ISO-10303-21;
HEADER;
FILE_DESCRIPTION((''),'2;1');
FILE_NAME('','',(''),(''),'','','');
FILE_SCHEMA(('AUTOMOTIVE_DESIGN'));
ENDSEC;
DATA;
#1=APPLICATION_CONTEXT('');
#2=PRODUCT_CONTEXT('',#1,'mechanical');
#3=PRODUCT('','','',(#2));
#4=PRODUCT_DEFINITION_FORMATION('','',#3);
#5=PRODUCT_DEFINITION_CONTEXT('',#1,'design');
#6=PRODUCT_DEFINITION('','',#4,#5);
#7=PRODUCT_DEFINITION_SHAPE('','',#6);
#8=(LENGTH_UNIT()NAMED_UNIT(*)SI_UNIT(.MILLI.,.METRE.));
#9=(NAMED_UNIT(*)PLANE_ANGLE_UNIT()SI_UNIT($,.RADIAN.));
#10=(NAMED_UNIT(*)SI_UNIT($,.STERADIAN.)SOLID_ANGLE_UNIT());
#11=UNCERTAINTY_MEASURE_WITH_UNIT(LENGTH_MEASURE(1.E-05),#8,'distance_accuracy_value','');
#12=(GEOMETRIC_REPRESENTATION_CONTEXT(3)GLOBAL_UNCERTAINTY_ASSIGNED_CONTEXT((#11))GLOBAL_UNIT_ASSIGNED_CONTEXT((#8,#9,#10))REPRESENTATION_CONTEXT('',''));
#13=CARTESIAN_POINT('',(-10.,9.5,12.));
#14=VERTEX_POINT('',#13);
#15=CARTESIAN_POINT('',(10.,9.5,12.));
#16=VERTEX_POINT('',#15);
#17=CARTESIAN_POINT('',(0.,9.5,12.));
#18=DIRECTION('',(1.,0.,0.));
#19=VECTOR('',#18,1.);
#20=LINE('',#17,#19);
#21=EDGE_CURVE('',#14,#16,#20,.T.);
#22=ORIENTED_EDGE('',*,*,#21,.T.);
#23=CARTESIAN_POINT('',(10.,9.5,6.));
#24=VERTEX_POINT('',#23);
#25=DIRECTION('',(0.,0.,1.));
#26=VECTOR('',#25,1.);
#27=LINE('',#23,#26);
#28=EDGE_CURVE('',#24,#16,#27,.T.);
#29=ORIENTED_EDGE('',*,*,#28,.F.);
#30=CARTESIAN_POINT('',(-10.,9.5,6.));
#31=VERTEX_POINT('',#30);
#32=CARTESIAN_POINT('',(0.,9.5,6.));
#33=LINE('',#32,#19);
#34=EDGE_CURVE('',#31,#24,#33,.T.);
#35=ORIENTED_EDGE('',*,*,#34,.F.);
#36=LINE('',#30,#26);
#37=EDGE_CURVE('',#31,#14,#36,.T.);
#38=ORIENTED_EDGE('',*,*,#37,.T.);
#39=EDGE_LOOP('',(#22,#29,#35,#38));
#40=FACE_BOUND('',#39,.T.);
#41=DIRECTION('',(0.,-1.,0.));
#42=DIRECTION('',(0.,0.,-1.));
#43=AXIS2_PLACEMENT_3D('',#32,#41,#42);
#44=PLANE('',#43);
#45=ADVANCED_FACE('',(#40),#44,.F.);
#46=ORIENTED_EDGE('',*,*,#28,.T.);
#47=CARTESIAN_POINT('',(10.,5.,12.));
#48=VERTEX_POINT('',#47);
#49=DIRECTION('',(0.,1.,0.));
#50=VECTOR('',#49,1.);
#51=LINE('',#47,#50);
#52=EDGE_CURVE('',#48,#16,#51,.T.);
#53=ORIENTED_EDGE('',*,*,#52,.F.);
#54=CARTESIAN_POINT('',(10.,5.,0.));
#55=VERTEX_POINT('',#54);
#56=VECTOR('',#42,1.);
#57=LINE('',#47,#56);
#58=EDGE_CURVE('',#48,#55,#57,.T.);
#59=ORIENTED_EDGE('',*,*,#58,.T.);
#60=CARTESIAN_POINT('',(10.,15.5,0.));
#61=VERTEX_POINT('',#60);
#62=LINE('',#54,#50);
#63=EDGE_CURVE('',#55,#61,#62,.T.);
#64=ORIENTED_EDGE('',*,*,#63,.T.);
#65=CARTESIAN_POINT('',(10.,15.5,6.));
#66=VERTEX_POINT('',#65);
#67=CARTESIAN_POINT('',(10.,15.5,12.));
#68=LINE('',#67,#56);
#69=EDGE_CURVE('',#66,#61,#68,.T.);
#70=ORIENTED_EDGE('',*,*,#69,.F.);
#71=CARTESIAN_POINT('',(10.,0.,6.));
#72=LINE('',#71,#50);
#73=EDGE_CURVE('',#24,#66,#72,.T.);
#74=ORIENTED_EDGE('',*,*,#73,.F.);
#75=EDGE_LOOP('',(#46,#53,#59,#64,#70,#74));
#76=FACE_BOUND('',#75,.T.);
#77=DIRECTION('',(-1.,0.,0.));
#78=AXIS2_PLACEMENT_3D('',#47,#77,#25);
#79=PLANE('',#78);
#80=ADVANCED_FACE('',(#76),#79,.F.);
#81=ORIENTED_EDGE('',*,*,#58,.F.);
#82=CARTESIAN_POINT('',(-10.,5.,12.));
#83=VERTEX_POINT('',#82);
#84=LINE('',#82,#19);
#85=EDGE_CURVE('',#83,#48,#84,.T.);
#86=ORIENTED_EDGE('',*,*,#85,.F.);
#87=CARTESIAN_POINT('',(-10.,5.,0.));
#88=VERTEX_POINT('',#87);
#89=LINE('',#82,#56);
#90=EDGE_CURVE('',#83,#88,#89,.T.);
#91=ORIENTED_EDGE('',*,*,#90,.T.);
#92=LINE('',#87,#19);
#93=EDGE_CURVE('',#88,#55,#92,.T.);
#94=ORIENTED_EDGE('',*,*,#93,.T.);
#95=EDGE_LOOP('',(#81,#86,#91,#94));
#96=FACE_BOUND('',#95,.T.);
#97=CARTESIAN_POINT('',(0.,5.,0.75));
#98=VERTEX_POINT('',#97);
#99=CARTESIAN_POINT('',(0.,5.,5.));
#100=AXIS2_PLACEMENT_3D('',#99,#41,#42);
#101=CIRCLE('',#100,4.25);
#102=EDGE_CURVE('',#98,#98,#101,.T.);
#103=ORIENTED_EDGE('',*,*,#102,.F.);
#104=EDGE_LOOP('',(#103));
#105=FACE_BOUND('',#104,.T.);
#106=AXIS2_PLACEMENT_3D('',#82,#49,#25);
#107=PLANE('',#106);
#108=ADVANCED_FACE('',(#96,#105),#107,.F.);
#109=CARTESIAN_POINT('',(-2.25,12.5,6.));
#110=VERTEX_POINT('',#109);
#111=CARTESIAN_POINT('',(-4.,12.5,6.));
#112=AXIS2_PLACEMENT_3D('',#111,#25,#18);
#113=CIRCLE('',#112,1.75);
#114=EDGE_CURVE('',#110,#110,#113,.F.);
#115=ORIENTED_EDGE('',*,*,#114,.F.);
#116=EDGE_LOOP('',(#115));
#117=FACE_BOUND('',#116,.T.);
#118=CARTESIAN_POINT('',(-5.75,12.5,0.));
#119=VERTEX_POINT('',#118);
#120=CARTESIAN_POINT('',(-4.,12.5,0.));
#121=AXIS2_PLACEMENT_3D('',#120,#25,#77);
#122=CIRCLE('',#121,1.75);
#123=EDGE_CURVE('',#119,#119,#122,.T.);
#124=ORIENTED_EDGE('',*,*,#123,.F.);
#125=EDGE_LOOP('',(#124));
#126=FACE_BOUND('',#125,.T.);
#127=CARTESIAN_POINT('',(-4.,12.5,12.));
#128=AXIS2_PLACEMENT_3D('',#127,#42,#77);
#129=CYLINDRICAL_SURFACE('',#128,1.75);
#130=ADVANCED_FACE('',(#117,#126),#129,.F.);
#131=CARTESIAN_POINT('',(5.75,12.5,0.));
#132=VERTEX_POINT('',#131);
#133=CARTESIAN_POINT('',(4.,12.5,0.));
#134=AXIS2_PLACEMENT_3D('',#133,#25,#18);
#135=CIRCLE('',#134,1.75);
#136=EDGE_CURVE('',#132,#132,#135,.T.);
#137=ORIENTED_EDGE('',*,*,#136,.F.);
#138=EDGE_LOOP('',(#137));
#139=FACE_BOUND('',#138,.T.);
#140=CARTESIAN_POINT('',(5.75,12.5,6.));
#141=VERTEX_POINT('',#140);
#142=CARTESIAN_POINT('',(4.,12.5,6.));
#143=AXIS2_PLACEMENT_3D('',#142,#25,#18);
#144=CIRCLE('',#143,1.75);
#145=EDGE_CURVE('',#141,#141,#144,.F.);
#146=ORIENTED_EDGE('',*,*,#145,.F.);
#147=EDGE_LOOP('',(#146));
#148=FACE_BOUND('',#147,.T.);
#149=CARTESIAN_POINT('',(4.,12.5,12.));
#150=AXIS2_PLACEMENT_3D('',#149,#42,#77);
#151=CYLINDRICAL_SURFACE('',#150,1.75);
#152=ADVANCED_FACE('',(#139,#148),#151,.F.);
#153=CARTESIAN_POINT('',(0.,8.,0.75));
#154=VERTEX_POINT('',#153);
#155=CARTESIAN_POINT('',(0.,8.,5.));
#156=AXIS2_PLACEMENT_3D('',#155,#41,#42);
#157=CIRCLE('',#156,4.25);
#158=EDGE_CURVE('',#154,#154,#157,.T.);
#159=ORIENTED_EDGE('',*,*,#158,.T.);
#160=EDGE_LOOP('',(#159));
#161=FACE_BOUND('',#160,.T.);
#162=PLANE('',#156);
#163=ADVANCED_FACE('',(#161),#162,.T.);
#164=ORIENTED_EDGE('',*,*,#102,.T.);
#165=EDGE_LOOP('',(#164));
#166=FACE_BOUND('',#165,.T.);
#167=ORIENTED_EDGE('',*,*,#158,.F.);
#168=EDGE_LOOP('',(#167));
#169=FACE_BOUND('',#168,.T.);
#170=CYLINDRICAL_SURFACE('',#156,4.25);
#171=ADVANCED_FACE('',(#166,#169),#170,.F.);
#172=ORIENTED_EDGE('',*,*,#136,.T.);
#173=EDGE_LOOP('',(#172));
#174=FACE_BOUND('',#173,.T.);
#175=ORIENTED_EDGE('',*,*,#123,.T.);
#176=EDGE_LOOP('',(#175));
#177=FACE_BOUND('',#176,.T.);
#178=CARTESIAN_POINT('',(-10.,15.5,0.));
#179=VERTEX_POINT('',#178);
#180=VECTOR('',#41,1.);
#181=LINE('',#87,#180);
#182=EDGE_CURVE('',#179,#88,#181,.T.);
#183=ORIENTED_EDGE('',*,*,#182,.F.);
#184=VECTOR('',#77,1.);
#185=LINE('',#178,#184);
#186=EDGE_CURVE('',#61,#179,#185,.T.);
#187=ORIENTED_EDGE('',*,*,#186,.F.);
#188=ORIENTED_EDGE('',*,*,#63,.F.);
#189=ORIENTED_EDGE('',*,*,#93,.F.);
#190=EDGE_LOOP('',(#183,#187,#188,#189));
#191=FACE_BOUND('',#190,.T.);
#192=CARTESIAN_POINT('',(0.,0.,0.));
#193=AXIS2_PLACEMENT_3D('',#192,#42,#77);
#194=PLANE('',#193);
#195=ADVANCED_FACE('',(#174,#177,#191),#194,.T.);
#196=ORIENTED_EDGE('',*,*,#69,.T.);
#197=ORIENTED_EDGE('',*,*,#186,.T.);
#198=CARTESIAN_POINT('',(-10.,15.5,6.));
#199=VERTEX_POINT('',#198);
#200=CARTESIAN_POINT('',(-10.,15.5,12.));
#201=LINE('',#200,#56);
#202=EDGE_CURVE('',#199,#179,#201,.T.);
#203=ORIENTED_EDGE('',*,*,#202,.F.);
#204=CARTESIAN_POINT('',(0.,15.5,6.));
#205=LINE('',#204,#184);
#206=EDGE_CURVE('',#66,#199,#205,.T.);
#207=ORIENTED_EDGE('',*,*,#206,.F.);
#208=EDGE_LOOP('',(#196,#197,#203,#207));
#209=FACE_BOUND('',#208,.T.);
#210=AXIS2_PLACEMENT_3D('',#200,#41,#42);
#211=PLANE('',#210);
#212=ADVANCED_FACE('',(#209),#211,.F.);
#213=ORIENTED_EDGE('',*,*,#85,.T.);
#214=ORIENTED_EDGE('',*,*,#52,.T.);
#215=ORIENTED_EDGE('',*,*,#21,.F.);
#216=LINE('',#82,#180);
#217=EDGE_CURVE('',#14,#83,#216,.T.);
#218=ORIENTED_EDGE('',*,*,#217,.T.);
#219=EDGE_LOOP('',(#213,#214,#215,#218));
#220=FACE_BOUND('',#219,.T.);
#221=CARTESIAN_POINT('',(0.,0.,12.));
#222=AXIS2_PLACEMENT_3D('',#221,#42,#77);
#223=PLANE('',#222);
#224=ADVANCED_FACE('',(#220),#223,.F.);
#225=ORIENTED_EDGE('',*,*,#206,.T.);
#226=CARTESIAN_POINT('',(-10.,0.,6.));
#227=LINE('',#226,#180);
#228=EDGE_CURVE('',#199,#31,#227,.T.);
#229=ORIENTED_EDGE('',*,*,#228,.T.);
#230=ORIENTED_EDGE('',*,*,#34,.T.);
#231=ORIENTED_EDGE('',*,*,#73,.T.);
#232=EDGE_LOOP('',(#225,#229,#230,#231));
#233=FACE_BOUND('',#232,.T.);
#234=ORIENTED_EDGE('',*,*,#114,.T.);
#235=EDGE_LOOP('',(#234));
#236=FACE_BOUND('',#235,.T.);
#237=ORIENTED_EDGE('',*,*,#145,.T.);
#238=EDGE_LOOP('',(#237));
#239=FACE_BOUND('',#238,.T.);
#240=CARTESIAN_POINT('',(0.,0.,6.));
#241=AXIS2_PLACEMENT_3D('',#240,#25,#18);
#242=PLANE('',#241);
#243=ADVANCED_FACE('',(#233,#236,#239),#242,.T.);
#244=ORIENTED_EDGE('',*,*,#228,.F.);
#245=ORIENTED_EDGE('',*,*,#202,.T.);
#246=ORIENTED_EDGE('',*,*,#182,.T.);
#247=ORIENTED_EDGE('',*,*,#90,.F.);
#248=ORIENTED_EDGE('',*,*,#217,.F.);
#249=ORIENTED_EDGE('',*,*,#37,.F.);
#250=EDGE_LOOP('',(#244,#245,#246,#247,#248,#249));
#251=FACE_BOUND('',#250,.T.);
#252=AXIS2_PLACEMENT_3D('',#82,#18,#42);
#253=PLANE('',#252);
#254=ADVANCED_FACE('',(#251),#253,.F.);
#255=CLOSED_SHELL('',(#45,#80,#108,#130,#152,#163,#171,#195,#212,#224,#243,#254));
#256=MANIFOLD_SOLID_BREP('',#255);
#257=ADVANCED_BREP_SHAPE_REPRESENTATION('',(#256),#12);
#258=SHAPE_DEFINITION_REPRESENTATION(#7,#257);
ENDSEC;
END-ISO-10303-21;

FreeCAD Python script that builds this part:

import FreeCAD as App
import Part
import Sketcher
from FreeCAD import Vector
Q = App.Units.Quantity

doc = App.newDocument("Part")
body = doc.addObject("PartDesign::Body", "Body")

# Sketch on XY plane
sketch1 = body.newObject("Sketcher::SketchObject", "Sketch")
sketch1.AttachmentSupport = (doc.getObject("XY_Plane"), [""])
sketch1.MapMode = "FlatFace"
sketch1.addGeometry([
    Part.LineSegment(Vector(-10, 15.5, 0), Vector(-10, 5, 0)),  # 0
    Part.LineSegment(Vector(-10, 5, 0), Vector(10, 5, 0)),  # 1
    Part.LineSegment(Vector(10, 5, 0), Vector(10, 15.5, 0)),  # 2
    Part.LineSegment(Vector(10, 15.5, 0), Vector(-10, 15.5, 0)),  # 3
    Part.Circle(Vector(-4, 12.5, 0), Vector(0, 0, 1), 1.8),  # 4
    Part.Circle(Vector(4, 12.5, 0), Vector(0, 0, 1), 1.8),  # 5
], False)
sketch1.addConstraint([
    Sketcher.Constraint("Coincident", 0, 2, 1, 1),
    Sketcher.Constraint("Coincident", 1, 2, 2, 1),
    Sketcher.Constraint("Coincident", 2, 2, 3, 1),
    Sketcher.Constraint("Coincident", 3, 2, 0, 1),
    Sketcher.Constraint("Vertical", 0),
    Sketcher.Constraint("Horizontal", 1),
    Sketcher.Constraint("Vertical", 2),
    Sketcher.Constraint("Horizontal", 3),
    Sketcher.Constraint("Equal", 4, 5),
    Sketcher.Constraint("Symmetric", 4, 3, 5, 3, -2),
    Sketcher.Constraint("Diameter", 4, Q("3.5 mm")),
    Sketcher.Constraint("DistanceX", 1, 1, 1, 2, Q("20 mm")),
    Sketcher.Constraint("DistanceY", 0, 2, 0, 1, Q("10.5 mm")),
    Sketcher.Constraint("DistanceX", 4, 3, -1, 1, Q("4 mm")),
    Sketcher.Constraint("DistanceX", 0, 2, -1, 1, Q("10 mm")),
    Sketcher.Constraint("DistanceY", -1, 1, 0, 2, Q("5 mm")),
    Sketcher.Constraint("DistanceY", 5, 3, 2, 2, Q("3 mm")),
])
pad1 = body.newObject("PartDesign::Pad", "Pad")
pad1.Profile = sketch1
pad1.Length = 12

# Sketch on XY plane
sketch2 = body.newObject("Sketcher::SketchObject", "Sketch001")
sketch2.AttachmentSupport = (doc.getObject("XY_Plane"), [""])
sketch2.MapMode = "FlatFace"
sketch2.AttachmentOffset = App.Placement(Vector(0, 0, 6), App.Rotation())
sketch2.addGeometry([
    Part.LineSegment(Vector(-10, 15.5, 0), Vector(-10, 9.5, 0)),  # 0
    Part.LineSegment(Vector(-10, 9.5, 0), Vector(10, 9.5, 0)),  # 1
    Part.LineSegment(Vector(10, 9.5, 0), Vector(10, 15.5, 0)),  # 2
    Part.LineSegment(Vector(10, 15.5, 0), Vector(-10, 15.5, 0)),  # 3
    Part.Circle(Vector(-4, 12.5, 0), Vector(0, 0, 1), 1.8),  # 4
    Part.Circle(Vector(4, 12.5, 0), Vector(0, 0, 1), 1.8),  # 5
], False)
sketch2.addConstraint([
    Sketcher.Constraint("Coincident", 0, 2, 1, 1),
    Sketcher.Constraint("Coincident", 1, 2, 2, 1),
    Sketcher.Constraint("Coincident", 2, 2, 3, 1),
    Sketcher.Constraint("Coincident", 3, 2, 0, 1),
    Sketcher.Constraint("Vertical", 0),
    Sketcher.Constraint("Horizontal", 1),
    Sketcher.Constraint("Vertical", 2),
    Sketcher.Constraint("Horizontal", 3),
    Sketcher.Constraint("Equal", 4, 5),
    Sketcher.Constraint("Symmetric", 4, 3, 5, 3, -2),
    Sketcher.Constraint("Diameter", 4, Q("3.5 mm")),
    Sketcher.Constraint("DistanceX", 1, 1, 1, 2, Q("20 mm")),
    Sketcher.Constraint("DistanceY", 0, 2, 0, 1, Q("6 mm")),
    Sketcher.Constraint("DistanceX", 4, 3, -1, 1, Q("4 mm")),
    Sketcher.Constraint("DistanceX", 0, 2, -1, 1, Q("10 mm")),
    Sketcher.Constraint("DistanceY", 0, 2, 4, 3, Q("3 mm")),
    Sketcher.Constraint("DistanceY", -1, 1, 4, 3, Q("12.5 mm")),
])
pocket1 = body.newObject("PartDesign::Pocket", "Pocket")
pocket1.Profile = sketch2
pocket1.Length = 6
pocket1.Reversed = True

# Sketch on XZ plane
sketch3 = body.newObject("Sketcher::SketchObject", "Sketch002")
sketch3.AttachmentSupport = (doc.getObject("XZ_Plane"), [""])
sketch3.MapMode = "FlatFace"
sketch3.AttachmentOffset = App.Placement(Vector(0, 0, -5), App.Rotation())
sketch3.addGeometry(Part.Circle(Vector(0, 5, 0), Vector(0, 0, 1), 4.2), False)
sketch3.addConstraint([
    Sketcher.Constraint("PointOnObject", 0, 3, -2),
    Sketcher.Constraint("Diameter", 0, Q("8.5 mm")),
    Sketcher.Constraint("DistanceY", -1, 1, 0, 3, Q("5 mm")),
])
pocket2 = body.newObject("PartDesign::Pocket", "Pocket001")
pocket2.Profile = sketch3
pocket2.Length = 3

doc.recompute()
